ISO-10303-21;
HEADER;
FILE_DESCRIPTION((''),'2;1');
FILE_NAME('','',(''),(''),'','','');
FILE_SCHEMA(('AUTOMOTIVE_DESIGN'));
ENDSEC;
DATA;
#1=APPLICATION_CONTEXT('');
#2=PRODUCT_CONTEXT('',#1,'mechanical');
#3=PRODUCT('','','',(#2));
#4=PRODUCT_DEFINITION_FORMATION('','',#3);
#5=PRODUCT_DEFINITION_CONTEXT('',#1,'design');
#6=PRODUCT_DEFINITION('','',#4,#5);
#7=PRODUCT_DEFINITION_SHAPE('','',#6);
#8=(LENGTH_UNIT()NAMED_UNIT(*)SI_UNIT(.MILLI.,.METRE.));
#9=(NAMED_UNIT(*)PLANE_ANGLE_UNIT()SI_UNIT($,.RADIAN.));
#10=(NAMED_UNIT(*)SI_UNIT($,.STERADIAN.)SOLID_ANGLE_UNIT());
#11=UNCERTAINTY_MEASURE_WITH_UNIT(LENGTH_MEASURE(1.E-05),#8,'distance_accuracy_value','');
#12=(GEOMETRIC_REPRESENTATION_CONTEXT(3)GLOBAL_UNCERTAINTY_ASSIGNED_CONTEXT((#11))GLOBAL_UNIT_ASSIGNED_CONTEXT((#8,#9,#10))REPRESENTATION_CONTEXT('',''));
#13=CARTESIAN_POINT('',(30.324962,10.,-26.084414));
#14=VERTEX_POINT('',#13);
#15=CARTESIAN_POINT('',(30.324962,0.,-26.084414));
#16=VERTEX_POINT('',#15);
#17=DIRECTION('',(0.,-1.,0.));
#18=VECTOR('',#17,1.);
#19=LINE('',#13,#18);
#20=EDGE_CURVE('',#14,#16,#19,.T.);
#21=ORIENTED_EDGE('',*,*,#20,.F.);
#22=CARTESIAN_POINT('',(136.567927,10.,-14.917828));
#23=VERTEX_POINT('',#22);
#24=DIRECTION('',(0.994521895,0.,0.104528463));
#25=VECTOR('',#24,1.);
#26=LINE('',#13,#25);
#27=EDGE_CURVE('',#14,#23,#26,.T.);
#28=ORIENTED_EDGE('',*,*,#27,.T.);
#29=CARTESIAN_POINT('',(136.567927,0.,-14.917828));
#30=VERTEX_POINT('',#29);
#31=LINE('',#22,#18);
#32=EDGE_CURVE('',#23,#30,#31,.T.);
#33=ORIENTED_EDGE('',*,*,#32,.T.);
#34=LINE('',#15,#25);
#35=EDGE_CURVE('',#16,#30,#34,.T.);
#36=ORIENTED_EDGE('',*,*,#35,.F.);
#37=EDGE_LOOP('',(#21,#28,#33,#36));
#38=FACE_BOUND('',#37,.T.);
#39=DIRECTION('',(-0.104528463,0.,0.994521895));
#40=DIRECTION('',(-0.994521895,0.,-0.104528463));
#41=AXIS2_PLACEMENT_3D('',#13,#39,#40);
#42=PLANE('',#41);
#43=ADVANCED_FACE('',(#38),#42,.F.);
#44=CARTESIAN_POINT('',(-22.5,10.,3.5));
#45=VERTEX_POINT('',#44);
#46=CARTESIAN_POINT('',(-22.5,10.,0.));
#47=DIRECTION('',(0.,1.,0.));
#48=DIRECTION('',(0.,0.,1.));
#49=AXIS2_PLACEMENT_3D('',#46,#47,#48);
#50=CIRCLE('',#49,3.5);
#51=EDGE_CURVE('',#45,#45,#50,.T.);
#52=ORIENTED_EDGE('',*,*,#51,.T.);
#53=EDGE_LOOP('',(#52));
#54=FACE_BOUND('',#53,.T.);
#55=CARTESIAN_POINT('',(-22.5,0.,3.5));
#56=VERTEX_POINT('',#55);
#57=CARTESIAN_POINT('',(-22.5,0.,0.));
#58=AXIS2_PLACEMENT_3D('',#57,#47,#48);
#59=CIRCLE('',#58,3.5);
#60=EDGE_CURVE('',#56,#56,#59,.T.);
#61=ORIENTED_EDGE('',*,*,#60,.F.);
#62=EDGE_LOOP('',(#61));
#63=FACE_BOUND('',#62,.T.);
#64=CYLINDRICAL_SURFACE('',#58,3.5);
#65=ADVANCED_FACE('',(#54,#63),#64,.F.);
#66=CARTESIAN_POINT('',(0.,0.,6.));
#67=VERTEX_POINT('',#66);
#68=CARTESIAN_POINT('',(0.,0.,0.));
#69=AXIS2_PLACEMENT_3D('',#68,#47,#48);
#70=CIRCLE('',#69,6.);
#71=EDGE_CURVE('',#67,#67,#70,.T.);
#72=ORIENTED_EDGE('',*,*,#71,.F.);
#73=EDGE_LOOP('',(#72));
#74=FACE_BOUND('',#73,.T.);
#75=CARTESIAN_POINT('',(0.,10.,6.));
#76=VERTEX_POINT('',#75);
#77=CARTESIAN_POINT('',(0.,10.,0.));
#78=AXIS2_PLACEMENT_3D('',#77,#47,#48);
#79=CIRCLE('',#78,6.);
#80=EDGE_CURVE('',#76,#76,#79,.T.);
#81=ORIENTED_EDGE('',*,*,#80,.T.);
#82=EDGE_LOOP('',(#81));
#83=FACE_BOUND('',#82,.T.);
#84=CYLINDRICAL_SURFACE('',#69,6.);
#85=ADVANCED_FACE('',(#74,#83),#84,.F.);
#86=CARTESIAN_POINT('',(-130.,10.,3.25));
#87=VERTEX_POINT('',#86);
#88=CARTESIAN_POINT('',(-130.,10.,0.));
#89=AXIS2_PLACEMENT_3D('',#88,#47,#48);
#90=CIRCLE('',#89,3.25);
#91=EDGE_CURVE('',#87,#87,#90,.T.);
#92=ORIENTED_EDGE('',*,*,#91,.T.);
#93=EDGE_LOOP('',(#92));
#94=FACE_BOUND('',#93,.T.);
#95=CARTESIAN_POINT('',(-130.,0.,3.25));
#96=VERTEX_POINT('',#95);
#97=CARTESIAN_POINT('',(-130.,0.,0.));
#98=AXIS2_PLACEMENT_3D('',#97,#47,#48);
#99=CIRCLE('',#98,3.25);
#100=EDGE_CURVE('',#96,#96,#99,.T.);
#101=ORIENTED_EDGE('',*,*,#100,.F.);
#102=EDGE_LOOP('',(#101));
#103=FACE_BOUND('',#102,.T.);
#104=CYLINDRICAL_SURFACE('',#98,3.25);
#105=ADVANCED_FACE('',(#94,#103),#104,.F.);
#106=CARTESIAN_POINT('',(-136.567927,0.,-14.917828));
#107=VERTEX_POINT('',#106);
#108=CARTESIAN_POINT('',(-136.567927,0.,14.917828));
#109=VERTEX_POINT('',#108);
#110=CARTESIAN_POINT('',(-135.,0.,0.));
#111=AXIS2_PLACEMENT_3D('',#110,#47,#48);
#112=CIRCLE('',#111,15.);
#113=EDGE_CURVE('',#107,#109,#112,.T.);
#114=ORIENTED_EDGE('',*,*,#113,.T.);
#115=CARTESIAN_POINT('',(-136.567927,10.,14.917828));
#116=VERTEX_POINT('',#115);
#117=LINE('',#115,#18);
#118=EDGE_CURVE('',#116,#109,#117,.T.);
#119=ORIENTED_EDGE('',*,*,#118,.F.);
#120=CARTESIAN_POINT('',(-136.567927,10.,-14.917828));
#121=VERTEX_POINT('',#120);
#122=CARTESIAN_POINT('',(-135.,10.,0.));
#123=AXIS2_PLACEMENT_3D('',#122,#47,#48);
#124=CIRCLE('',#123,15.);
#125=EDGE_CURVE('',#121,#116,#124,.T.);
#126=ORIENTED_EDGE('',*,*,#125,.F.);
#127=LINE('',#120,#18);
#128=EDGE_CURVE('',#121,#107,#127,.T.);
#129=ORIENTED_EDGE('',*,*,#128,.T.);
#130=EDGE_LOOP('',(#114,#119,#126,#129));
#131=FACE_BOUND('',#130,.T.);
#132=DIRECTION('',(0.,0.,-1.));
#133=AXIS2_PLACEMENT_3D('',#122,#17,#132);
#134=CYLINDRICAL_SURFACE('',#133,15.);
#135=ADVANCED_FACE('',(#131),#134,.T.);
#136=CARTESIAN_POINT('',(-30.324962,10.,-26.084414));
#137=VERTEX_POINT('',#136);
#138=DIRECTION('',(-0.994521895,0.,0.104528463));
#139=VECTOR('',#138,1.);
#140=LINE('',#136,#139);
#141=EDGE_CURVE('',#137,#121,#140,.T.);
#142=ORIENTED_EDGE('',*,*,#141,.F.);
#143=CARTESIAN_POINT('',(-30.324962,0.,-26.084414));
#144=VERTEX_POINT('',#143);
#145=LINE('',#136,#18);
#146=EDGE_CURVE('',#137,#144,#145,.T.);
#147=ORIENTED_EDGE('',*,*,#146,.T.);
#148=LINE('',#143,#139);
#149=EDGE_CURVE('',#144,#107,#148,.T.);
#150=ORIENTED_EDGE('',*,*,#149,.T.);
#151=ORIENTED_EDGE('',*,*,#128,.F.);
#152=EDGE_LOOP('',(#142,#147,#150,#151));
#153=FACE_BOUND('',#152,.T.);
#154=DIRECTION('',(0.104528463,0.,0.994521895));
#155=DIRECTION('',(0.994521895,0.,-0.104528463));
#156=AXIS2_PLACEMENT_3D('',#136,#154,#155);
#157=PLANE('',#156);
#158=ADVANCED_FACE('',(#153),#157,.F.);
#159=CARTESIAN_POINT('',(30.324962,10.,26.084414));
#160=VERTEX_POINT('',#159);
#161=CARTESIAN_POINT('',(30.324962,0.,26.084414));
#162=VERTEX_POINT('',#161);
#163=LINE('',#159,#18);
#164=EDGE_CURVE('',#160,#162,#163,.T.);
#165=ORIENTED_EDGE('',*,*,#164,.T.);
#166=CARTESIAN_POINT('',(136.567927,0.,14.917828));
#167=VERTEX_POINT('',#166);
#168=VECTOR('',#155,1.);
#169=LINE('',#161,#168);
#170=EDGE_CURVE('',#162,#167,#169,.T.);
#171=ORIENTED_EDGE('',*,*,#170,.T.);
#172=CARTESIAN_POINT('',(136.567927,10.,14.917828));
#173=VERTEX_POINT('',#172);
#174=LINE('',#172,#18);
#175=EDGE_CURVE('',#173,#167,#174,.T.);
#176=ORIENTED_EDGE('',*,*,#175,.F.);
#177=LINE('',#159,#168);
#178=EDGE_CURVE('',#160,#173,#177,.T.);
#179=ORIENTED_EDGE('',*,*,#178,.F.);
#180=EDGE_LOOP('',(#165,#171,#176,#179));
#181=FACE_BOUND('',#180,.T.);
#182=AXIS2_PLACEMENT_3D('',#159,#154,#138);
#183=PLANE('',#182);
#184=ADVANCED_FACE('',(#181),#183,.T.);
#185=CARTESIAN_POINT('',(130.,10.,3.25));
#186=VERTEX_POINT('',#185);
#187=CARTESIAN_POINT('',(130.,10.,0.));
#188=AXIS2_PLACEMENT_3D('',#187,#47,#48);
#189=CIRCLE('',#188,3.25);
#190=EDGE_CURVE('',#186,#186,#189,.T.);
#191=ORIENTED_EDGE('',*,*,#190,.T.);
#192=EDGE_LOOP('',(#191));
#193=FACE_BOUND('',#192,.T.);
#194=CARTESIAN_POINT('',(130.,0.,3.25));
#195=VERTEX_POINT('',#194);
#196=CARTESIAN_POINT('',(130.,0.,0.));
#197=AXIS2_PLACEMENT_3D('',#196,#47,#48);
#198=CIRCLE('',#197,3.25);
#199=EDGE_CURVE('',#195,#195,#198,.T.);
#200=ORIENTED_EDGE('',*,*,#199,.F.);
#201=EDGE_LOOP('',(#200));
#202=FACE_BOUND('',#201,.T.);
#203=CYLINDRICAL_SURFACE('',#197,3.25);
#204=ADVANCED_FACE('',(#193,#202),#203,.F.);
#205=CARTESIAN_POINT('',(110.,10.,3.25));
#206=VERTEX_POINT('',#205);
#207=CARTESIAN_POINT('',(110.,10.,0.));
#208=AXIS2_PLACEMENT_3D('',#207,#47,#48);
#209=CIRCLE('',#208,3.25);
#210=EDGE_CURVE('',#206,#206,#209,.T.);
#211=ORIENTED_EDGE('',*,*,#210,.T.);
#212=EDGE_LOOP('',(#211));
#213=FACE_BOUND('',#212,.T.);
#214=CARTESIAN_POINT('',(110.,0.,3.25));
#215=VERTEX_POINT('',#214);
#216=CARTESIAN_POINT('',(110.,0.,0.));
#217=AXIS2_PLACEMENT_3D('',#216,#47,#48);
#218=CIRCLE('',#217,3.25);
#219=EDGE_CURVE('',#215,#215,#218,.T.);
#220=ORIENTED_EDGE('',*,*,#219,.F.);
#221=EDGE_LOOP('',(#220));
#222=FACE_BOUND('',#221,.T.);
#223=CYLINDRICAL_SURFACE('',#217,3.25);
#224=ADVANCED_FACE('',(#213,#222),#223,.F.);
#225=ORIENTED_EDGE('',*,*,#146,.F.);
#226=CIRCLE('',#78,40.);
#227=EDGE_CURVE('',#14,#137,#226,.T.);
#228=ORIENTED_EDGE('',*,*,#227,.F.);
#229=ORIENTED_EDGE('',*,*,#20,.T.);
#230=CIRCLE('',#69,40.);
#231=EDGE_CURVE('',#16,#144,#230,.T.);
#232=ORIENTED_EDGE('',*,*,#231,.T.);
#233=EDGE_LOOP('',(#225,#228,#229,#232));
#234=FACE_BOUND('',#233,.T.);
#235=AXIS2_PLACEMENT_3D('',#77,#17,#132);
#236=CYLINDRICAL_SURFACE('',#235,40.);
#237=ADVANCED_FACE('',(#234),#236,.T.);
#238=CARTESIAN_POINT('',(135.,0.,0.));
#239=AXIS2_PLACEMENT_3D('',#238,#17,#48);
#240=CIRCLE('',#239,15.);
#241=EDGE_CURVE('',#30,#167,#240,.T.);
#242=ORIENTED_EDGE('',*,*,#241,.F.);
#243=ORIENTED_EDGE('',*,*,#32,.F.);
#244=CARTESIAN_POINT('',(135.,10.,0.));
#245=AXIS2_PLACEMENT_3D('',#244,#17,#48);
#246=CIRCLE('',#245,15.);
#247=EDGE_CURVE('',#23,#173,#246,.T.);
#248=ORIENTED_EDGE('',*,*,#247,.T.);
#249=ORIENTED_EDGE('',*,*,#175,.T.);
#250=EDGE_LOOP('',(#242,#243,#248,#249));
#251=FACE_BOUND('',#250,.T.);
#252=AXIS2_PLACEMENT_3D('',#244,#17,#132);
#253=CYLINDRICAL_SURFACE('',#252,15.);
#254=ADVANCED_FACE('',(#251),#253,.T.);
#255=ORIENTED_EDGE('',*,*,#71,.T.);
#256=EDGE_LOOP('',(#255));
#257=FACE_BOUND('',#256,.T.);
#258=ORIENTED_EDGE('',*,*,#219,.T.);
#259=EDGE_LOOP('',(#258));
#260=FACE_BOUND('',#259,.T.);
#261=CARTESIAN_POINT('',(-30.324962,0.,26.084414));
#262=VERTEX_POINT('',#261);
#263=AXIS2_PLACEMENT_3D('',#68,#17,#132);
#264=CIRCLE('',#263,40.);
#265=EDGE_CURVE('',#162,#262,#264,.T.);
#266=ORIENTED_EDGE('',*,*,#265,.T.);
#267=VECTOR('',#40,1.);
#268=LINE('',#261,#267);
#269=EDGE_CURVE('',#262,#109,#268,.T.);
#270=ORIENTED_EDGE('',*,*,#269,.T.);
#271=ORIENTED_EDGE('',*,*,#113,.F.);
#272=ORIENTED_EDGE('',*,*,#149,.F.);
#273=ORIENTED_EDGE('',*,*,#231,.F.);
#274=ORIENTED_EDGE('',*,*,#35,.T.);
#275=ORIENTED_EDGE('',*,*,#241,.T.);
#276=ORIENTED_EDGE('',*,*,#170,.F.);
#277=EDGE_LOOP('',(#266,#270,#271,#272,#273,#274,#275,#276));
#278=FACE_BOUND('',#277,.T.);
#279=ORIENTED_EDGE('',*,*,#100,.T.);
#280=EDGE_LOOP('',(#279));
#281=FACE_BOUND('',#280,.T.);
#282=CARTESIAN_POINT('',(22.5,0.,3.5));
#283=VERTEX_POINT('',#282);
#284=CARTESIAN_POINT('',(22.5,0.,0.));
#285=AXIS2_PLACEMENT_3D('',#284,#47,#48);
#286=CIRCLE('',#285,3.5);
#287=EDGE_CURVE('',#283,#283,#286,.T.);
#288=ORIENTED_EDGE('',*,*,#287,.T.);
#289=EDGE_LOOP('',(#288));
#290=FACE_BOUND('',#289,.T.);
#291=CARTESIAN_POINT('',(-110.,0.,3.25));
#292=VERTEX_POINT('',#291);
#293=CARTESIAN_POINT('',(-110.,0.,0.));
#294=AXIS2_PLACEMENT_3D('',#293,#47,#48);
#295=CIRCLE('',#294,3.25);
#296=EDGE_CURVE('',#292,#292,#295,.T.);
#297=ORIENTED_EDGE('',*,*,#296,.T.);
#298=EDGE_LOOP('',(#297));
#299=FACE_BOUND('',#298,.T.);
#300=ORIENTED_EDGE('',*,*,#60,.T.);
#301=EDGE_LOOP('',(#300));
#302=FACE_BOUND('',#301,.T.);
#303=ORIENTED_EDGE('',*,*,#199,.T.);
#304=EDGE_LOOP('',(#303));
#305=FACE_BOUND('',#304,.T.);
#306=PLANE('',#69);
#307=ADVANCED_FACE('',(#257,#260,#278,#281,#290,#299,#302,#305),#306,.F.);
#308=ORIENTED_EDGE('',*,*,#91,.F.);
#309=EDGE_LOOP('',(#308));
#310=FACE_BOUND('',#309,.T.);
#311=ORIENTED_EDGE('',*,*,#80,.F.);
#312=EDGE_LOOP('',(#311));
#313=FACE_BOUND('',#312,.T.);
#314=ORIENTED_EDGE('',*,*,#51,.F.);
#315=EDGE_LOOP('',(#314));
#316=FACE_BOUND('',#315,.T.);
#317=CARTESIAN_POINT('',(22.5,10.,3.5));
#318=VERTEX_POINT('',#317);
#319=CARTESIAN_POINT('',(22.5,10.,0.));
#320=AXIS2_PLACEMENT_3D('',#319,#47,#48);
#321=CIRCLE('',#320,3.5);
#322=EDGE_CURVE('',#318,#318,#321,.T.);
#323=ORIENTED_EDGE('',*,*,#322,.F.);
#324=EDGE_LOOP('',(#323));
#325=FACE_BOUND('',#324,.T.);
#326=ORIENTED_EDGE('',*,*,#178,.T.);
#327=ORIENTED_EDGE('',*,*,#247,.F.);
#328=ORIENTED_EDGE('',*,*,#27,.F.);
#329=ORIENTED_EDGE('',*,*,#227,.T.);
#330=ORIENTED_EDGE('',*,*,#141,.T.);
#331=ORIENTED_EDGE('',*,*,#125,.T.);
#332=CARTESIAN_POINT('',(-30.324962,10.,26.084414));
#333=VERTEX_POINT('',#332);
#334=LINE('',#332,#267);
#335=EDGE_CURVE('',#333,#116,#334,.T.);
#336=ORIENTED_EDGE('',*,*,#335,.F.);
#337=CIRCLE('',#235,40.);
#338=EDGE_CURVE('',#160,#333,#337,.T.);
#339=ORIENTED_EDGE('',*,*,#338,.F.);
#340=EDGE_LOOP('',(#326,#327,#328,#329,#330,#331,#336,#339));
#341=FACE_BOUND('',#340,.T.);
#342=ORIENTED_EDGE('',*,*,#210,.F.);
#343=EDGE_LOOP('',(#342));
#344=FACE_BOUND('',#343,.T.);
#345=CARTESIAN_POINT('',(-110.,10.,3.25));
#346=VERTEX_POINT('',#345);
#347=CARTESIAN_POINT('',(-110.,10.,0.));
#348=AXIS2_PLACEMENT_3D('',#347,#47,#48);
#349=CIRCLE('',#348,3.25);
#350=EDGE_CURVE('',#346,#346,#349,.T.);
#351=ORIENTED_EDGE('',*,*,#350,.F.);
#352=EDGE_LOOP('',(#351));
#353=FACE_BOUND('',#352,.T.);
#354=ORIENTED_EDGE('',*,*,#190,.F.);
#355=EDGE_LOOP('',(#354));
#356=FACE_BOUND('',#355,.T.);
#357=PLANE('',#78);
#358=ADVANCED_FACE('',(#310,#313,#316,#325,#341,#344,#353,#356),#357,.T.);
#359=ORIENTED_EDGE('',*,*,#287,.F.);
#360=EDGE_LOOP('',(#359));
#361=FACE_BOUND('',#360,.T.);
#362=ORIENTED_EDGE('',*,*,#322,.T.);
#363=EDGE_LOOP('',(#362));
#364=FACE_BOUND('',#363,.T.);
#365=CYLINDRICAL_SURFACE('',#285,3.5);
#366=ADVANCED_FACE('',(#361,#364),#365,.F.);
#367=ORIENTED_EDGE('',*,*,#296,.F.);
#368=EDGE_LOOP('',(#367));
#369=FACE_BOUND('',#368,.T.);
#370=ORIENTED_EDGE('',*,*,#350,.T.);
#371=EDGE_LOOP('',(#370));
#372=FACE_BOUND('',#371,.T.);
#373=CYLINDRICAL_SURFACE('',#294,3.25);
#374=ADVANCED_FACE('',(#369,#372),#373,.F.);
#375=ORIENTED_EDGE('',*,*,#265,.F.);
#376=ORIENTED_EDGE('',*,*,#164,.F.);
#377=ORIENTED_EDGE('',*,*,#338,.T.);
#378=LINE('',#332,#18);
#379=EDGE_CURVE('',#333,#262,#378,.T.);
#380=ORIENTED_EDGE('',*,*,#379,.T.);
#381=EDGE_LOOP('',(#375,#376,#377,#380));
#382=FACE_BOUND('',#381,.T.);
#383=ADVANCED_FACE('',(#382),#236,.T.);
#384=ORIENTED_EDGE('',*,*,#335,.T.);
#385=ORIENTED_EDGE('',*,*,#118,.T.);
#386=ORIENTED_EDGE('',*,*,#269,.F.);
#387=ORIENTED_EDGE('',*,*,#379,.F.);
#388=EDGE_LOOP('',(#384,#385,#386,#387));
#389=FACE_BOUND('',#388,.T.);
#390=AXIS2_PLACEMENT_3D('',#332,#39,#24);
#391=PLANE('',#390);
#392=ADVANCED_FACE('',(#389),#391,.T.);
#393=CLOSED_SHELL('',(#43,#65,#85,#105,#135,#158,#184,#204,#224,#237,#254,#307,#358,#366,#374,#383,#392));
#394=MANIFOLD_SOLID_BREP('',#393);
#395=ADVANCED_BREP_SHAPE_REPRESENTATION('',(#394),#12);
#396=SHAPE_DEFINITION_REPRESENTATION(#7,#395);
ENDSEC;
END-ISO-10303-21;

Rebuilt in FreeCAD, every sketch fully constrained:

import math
import FreeCAD as App
import Part
import Sketcher

V = App.Vector
Q = App.Units.Quantity

doc = App.newDocument("Part")
body = doc.addObject("PartDesign::Body", "Body")

sketch1 = body.newObject("Sketcher::SketchObject", "Sketch")
sketch1.AttachmentSupport = (doc.getObject("XZ_Plane"), [""])
sketch1.MapMode = "FlatFace"
sketch1.addGeometry(Part.LineSegment(V(-30, -26, 0), V(-137, -15, 0)), False)
sketch1.addGeometry(Part.ArcOfCircle(Part.Circle(V(-135, 0, 0), V(0, 0, 1), 15), math.radians(-180), math.radians(-96)), False)
sketch1.addGeometry(Part.LineSegment(V(-150, 0, 0), V(0, 0, 0)), False)
sketch1.addGeometry(Part.LineSegment(V(0, 0, 0), V(0, -40, 0)), False)
sketch1.addGeometry(Part.ArcOfCircle(Part.Circle(V(0, 0, 0), V(0, 0, 1), 40), math.radians(-139), math.radians(-90)), False)
sketch1.addConstraint(Sketcher.Constraint("Tangent", 0, 2, 1, 2))
sketch1.addConstraint(Sketcher.Constraint("Coincident", 1, 1, 2, 1))
sketch1.addConstraint(Sketcher.Constraint("Coincident", 2, 2, 3, 1))
sketch1.addConstraint(Sketcher.Constraint("Coincident", 3, 2, 4, 2))
sketch1.addConstraint(Sketcher.Constraint("Coincident", 4, 1, 0, 1))
sketch1.addConstraint(Sketcher.Constraint("Horizontal", 2))
sketch1.addConstraint(Sketcher.Constraint("Vertical", 3))
sketch1.addConstraint(Sketcher.Constraint("Coincident", 4, 3, -1, 1))
sketch1.addConstraint(Sketcher.Constraint("Coincident", 2, 2, -1, 1))
sketch1.addConstraint(Sketcher.Constraint("PointOnObject", 1, 3, -1))
sketch1.addConstraint(Sketcher.Constraint("Radius", 1, 15.0))
sketch1.addConstraint(Sketcher.Constraint("Radius", 4, 40.0))
sketch1.addConstraint(Sketcher.Constraint("DistanceX", 2, 1, 2, 2, 150.0))
sketch1.addConstraint(Sketcher.Constraint("Angle", 0, Q("174 deg")))
pad1 = body.newObject("PartDesign::Pad", "Pad")
pad1.Profile = sketch1
pad1.Length = 10
pad1.Reversed = True
doc.recompute()

mirrored = body.newObject("PartDesign::Mirrored", "Mirrored")
mirrored.Originals = [pad1]
mirrored.MirrorPlane = (doc.getObject("XY_Plane"), [""])
body.Tip = mirrored
doc.recompute()

mirrored2 = body.newObject("PartDesign::Mirrored", "Mirrored001")
mirrored2.Originals = [pad1]
mirrored2.MirrorPlane = (doc.getObject("YZ_Plane"), [""])
body.Tip = mirrored2

sketch2 = body.newObject("Sketcher::SketchObject", "Sketch001")
sketch2.AttachmentSupport = (doc.getObject("XZ_Plane"), [""])
sketch2.MapMode = "FlatFace"
sketch2.addGeometry(Part.LineSegment(V(30, 26, 0), V(137, 15, 0)), False)
sketch2.addGeometry(Part.ArcOfCircle(Part.Circle(V(135, 0, 0), V(0, 0, 1), 15), math.radians(0), math.radians(84)), False)
sketch2.addGeometry(Part.LineSegment(V(150, 0, 0), V(0, 0, 0)), False)
sketch2.addGeometry(Part.LineSegment(V(0, 0, 0), V(0, 40, 0)), False)
sketch2.addGeometry(Part.ArcOfCircle(Part.Circle(V(0, 0, 0), V(0, 0, 1), 40), math.radians(41), math.radians(90)), False)
sketch2.addConstraint(Sketcher.Constraint("Tangent", 0, 2, 1, 2))
sketch2.addConstraint(Sketcher.Constraint("Coincident", 1, 1, 2, 1))
sketch2.addConstraint(Sketcher.Constraint("Coincident", 2, 2, 3, 1))
sketch2.addConstraint(Sketcher.Constraint("Coincident", 3, 2, 4, 2))
sketch2.addConstraint(Sketcher.Constraint("Coincident", 4, 1, 0, 1))
sketch2.addConstraint(Sketcher.Constraint("Horizontal", 2))
sketch2.addConstraint(Sketcher.Constraint("Vertical", 3))
sketch2.addConstraint(Sketcher.Constraint("Coincident", 4, 3, -1, 1))
sketch2.addConstraint(Sketcher.Constraint("Coincident", 2, 2, -1, 1))
sketch2.addConstraint(Sketcher.Constraint("PointOnObject", 1, 3, -1))
sketch2.addConstraint(Sketcher.Constraint("Radius", 1, 15.0))
sketch2.addConstraint(Sketcher.Constraint("Radius", 4, 40.0))
sketch2.addConstraint(Sketcher.Constraint("DistanceX", 2, 2, 2, 1, 150.0))
sketch2.addConstraint(Sketcher.Constraint("Angle", 0, Q("-6 deg")))
pad2 = body.newObject("PartDesign::Pad", "Pad001")
pad2.Profile = sketch2
pad2.Length = 10
pad2.Reversed = True

sketch3 = body.newObject("Sketcher::SketchObject", "Sketch002")
sketch3.AttachmentSupport = (doc.getObject("XZ_Plane"), [""])
sketch3.MapMode = "FlatFace"
sketch3.AttachmentOffset = App.Placement(V(0, 0, -10), App.Rotation())
sketch3.addGeometry(Part.Circle(V(-22.5, 0, 0), V(0, 0, 1), 3.5), False)
sketch3.addGeometry(Part.Circle(V(22.5, 0, 0), V(0, 0, 1), 3.5), False)
sketch3.addGeometry(Part.Circle(V(0, 0, 0), V(0, 0, 1), 6), False)
sketch3.addGeometry(Part.Circle(V(-110, 0, 0), V(0, 0, 1), 3.2), False)
sketch3.addGeometry(Part.Circle(V(-130, 0, 0), V(0, 0, 1), 3.2), False)
sketch3.addGeometry(Part.Circle(V(110, 0, 0), V(0, 0, 1), 3.2), False)
sketch3.addGeometry(Part.Circle(V(130, 0, 0), V(0, 0, 1), 3.2), False)
sketch3.addConstraint(Sketcher.Constraint("Coincident", 2, 3, -1, 1))
sketch3.addConstraint(Sketcher.Constraint("Equal", 0, 1))
sketch3.addConstraint(Sketcher.Constraint("Equal", 3, 4))
sketch3.addConstraint(Sketcher.Constraint("Equal", 4, 5))
sketch3.addConstraint(Sketcher.Constraint("Equal", 5, 6))
sketch3.addConstraint(Sketcher.Constraint("Symmetric", 0, 3, 1, 3, -1, 1))
sketch3.addConstraint(Sketcher.Constraint("Symmetric", 3, 3, 5, 3, -1, 1))
sketch3.addConstraint(Sketcher.Constraint("Symmetric", 4, 3, 6, 3, -1, 1))
sketch3.addConstraint(Sketcher.Constraint("PointOnObject", 0, 3, -1))
sketch3.addConstraint(Sketcher.Constraint("PointOnObject", 3, 3, -1))
sketch3.addConstraint(Sketcher.Constraint("PointOnObject", 4, 3, -1))
sketch3.addConstraint(Sketcher.Constraint("Diameter", 0, 7.0))
sketch3.addConstraint(Sketcher.Constraint("Diameter", 2, 12.0))
sketch3.addConstraint(Sketcher.Constraint("Diameter", 3, 6.5))
sketch3.addConstraint(Sketcher.Constraint("DistanceX", 3, 3, -1, 1, 110.0))
sketch3.addConstraint(Sketcher.Constraint("DistanceX", 4, 3, -1, 1, 130.0))
sketch3.addConstraint(Sketcher.Constraint("DistanceX", 0, 3, 1, 3, 45.0))
pocket1 = body.newObject("PartDesign::Pocket", "Pocket")
pocket1.Profile = sketch3
pocket1.Length = 10
pocket1.Reversed = True

doc.recompute()
